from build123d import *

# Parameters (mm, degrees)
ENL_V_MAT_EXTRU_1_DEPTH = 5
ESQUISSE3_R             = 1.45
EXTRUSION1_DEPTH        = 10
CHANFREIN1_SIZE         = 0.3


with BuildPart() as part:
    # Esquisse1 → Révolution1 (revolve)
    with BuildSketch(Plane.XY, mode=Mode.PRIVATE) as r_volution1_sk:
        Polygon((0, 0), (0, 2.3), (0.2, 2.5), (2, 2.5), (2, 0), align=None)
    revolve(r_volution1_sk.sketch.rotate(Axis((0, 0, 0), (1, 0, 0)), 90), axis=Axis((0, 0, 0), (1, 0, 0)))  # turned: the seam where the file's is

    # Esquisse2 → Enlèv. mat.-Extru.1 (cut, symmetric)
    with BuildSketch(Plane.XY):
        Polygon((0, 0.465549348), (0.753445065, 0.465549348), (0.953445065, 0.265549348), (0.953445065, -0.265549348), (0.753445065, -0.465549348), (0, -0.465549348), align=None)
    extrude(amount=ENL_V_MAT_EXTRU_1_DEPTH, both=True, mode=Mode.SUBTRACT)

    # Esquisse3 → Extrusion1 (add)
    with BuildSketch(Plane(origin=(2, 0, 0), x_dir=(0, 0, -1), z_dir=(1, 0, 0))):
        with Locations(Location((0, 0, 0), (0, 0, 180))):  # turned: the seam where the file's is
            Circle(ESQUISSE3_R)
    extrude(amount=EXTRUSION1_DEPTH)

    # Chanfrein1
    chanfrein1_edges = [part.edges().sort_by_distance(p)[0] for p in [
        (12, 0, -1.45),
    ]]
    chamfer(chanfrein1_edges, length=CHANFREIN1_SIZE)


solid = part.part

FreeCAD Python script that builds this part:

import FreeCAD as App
import Part
import Sketcher

V = App.Vector
Q = App.Units.Quantity


def edges_at(feature, points):
    """Names of the edges that pass closest to the given points."""
    edges = feature.Shape.Edges
    near = lambda p: min(range(len(edges)), key=lambda i: edges[i].distToShape(Part.Vertex(*p))[0])
    return sorted({f"Edge{near(p) + 1}" for p in points})

doc = App.newDocument("Part")
params = doc.addObject("Spreadsheet::Sheet", "Params")
for row, (alias, value) in enumerate([
    ("sketch1_width", "2 mm"),
    ("sketch1_width2", "1.8 mm"),
    ("sketch1_height", "2.3 mm"),
    ("revolution_angle", "360 deg"),
    ("pocket1_length", "10 mm"),
    ("sketch3_diameter", "2.9 mm"),
    ("pad1_length", "10 mm"),
    ("chamfer_size", "0.3 mm"),
], start=1):
    params.set(f"A{row}", alias)
    params.set(f"B{row}", "=" + value)
    params.setAlias(f"B{row}", alias)

body = doc.addObject("PartDesign::Body", "Body")

# Sketch on XY plane
sketch1 = doc.addObject("Sketcher::SketchObject", "Sketch")
body.addObject(sketch1)
sketch1.AttachmentSupport = (doc.XY_Plane, [""])
sketch1.MapMode = "FlatFace"
sketch1.addGeometry([
    Part.LineSegment(V(0, 2.3, 0), V(0, 0, 0)),  # 0
    Part.LineSegment(V(0, 0, 0), V(2, 0, 0)),  # 1
    Part.LineSegment(V(2, 0, 0), V(2, 2.5, 0)),  # 2
    Part.LineSegment(V(2, 2.5, 0), V(0.2, 2.5, 0)),  # 3
    Part.LineSegment(V(0.2, 2.5, 0), V(0, 2.3, 0)),  # 4
], False)
sketch1.addConstraint([
    Sketcher.Constraint("Coincident", 0, 2, 1, 1),
    Sketcher.Constraint("Coincident", 1, 2, 2, 1),
    Sketcher.Constraint("Coincident", 2, 2, 3, 1),
    Sketcher.Constraint("Coincident", 3, 2, 4, 1),
    Sketcher.Constraint("Coincident", 4, 2, 0, 1),
    Sketcher.Constraint("Vertical", 0),
    Sketcher.Constraint("Horizontal", 1),
    Sketcher.Constraint("Vertical", 2),
    Sketcher.Constraint("Horizontal", 3),
    Sketcher.Constraint("Coincident", 0, 2, -1, 1),
    Sketcher.Constraint("DistanceX", 1, 1, 1, 2, 2.0),
    Sketcher.Constraint("Angle", 4, Q("-135 deg")),
    Sketcher.Constraint("DistanceX", 3, 2, 3, 1, 1.8),
    Sketcher.Constraint("DistanceY", 0, 2, 0, 1, 2.3),
])
sketch1.setExpression("Constraints[10]", "Params.sketch1_width")
sketch1.setExpression("Constraints[12]", "Params.sketch1_width2")
sketch1.setExpression("Constraints[13]", "Params.sketch1_height")
revolution = doc.addObject("PartDesign::Revolution", "Revolution")
body.addObject(revolution)
revolution.Profile = sketch1
revolution.ReferenceAxis = (sketch1, ["H_Axis"])
revolution.setExpression("Angle", "Params.revolution_angle")

# Sketch on XY plane
sketch2 = doc.addObject("Sketcher::SketchObject", "Sketch001")
body.addObject(sketch2)
sketch2.AttachmentSupport = (doc.XY_Plane, [""])
sketch2.MapMode = "FlatFace"
sketch2.addGeometry([
    Part.LineSegment(V(0.75, 0.47, 0), V(0, 0.47, 0)),  # 0
    Part.LineSegment(V(0, 0.47, 0), V(0, -0.47, 0)),  # 1
    Part.LineSegment(V(0, -0.47, 0), V(0.75, -0.47, 0)),  # 2
    Part.LineSegment(V(0.75, -0.47, 0), V(0.95, -0.27, 0)),  # 3
    Part.LineSegment(V(0.95, -0.27, 0), V(0.95, 0.27, 0)),  # 4
    Part.LineSegment(V(0.95, 0.27, 0), V(0.75, 0.47, 0)),  # 5
], False)
sketch2.addConstraint([
    Sketcher.Constraint("Coincident", 0, 2, 1, 1),
    Sketcher.Constraint("Coincident", 1, 2, 2, 1),
    Sketcher.Constraint("Coincident", 2, 2, 3, 1),
    Sketcher.Constraint("Coincident", 3, 2, 4, 1),
    Sketcher.Constraint("Coincident", 4, 2, 5, 1),
    Sketcher.Constraint("Coincident", 5, 2, 0, 1),
    Sketcher.Constraint("Horizontal", 0),
    Sketcher.Constraint("Vertical", 1),
    Sketcher.Constraint("Horizontal", 2),
    Sketcher.Constraint("Vertical", 4),
    Sketcher.Constraint("Symmetric", 0, 2, 1, 2, -1, 1),
    Sketcher.Constraint("Perpendicular", 3, 5),
    Sketcher.Constraint("Vertical", 2, 2, 5, 2),
    Sketcher.Constraint("Equal", 3, 5),
    Sketcher.Constraint("DistanceX", 2, 2, 3, 2, 0.2),
    Sketcher.Constraint("DistanceY", 1, 2, 1, 1, 0.931099),
    Sketcher.Constraint("DistanceX", 0, 2, 0, 1, 0.753445),
])
pocket1 = doc.addObject("PartDesign::Pocket", "Pocket")
body.addObject(pocket1)
pocket1.Profile = sketch2
pocket1.setExpression("Length", "Params.pocket1_length")
pocket1.Midplane = True

# Sketch on YZ plane
sketch3 = doc.addObject("Sketcher::SketchObject", "Sketch002")
body.addObject(sketch3)
sketch3.AttachmentSupport = (doc.YZ_Plane, [""])
sketch3.MapMode = "FlatFace"
sketch3.AttachmentOffset = App.Placement(V(0, 0, 2), App.Rotation())
sketch3.addGeometry(Part.Circle(V(0, 0, 0), V(0, 0, 1), 1.4), False)
sketch3.addConstraint([
    Sketcher.Constraint("Coincident", 0, 3, -1, 1),
    Sketcher.Constraint("Diameter", 0, 2.9),
])
sketch3.setExpression("Constraints[1]", "Params.sketch3_diameter")
pad1 = doc.addObject("PartDesign::Pad", "Pad")
body.addObject(pad1)
pad1.Profile = sketch3
pad1.setExpression("Length", "Params.pad1_length")
doc.recompute()

chamfer = doc.addObject("PartDesign::Chamfer", "Chamfer")
body.addObject(chamfer)
chamfer.Base = (pad1, edges_at(pad1, [(12, 0, -1.45)]))
chamfer.setExpression("Size", "Params.chamfer_size")

doc.recompute()
